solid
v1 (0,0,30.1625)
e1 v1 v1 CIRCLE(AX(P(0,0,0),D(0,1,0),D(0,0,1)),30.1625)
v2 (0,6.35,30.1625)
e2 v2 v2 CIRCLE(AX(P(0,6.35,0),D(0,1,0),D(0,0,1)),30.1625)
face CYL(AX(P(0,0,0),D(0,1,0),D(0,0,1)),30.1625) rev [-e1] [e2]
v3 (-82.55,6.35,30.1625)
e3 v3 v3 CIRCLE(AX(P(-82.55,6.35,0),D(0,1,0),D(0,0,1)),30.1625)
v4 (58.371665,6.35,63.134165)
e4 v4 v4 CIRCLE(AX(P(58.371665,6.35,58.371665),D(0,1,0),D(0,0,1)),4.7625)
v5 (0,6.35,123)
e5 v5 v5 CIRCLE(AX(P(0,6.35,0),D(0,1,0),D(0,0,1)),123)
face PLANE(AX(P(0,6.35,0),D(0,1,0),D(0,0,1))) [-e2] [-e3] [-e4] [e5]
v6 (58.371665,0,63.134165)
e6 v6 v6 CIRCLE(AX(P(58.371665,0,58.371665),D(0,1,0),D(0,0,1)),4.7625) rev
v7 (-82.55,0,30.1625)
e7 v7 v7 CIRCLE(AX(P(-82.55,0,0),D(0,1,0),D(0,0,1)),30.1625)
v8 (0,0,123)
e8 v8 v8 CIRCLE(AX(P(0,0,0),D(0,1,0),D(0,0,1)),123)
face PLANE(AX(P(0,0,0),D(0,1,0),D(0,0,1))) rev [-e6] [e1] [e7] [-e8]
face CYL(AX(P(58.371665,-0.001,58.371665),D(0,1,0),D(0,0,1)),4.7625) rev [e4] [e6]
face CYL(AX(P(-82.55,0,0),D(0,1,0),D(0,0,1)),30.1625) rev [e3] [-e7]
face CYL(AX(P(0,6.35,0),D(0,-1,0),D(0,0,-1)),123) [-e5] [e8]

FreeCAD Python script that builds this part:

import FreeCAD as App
import Part
import Sketcher

V = App.Vector
Q = App.Units.Quantity

doc = App.newDocument("Part")
body = doc.addObject("PartDesign::Body", "Body")

# Sketch on XZ plane
sketch1 = body.newObject("Sketcher::SketchObject", "Sketch")
sketch1.AttachmentSupport = (doc.getObject("XZ_Plane"), [""])
sketch1.MapMode = "FlatFace"
sketch1.addGeometry(Part.Circle(V(0, 0, 0), V(0, 0, 1), 123), False)
sketch1.addConstraint([
    Sketcher.Constraint("Coincident", 0, 3, -1, 1),
    Sketcher.Constraint("Diameter", 0, Q("246 mm")),
])
pad1 = body.newObject("PartDesign::Pad", "Pad")
pad1.Profile = sketch1
pad1.Length = Q("0.25 in")
pad1.Reversed = True

# Sketch on XZ plane
sketch2 = body.newObject("Sketcher::SketchObject", "Sketch001")
sketch2.AttachmentSupport = (doc.getObject("XZ_Plane"), [""])
sketch2.MapMode = "FlatFace"
sketch2.AttachmentOffset = App.Placement(V(0, 0, -0.25 * 25.4), App.Rotation())
sketch2.addGeometry([
    Part.Circle(V(0, 0, 0), V(0, 0, 1), 30),
    Part.Circle(V(-83, 0, 0), V(0, 0, 1), 30),
], False)
sketch2.addConstraint([
    Sketcher.Constraint("Coincident", 0, 3, -1, 1),
    Sketcher.Constraint("Equal", 0, 1),
    Sketcher.Constraint("PointOnObject", 1, 3, -1),
    Sketcher.Constraint("Diameter", 0, Q("2.375 in")),
    Sketcher.Constraint("DistanceX", 1, 3, -1, 1, Q("3.25 in")),
])
pocket1 = body.newObject("PartDesign::Pocket", "Pocket")
pocket1.Profile = sketch2
pocket1.Type = "ThroughAll"
pocket1.Reversed = True

# Sketch on XZ plane
sketch3 = body.newObject("Sketcher::SketchObject", "Sketch002")
sketch3.AttachmentSupport = (doc.getObject("XZ_Plane"), [""])
sketch3.MapMode = "FlatFace"
sketch3.AttachmentOffset = App.Placement(V(0, 0, -0.25 * 25.4), App.Rotation())
sketch3.addGeometry(Part.Circle(V(58.4, 58.4, 0), V(0, 0, 1), 4.8), False)
sketch3.addConstraint([
    Sketcher.Constraint("Diameter", 0, Q("0.375 in")),
    Sketcher.Constraint("DistanceX", -1, 1, 0, 3, Q("58.371665 mm")),
    Sketcher.Constraint("DistanceY", -1, 1, 0, 3, Q("58.371665 mm")),
])
pocket2 = body.newObject("PartDesign::Pocket", "Pocket001")
pocket2.Profile = sketch3
pocket2.Type = "UpToFirst"
pocket2.Reversed = True

doc.recompute()
